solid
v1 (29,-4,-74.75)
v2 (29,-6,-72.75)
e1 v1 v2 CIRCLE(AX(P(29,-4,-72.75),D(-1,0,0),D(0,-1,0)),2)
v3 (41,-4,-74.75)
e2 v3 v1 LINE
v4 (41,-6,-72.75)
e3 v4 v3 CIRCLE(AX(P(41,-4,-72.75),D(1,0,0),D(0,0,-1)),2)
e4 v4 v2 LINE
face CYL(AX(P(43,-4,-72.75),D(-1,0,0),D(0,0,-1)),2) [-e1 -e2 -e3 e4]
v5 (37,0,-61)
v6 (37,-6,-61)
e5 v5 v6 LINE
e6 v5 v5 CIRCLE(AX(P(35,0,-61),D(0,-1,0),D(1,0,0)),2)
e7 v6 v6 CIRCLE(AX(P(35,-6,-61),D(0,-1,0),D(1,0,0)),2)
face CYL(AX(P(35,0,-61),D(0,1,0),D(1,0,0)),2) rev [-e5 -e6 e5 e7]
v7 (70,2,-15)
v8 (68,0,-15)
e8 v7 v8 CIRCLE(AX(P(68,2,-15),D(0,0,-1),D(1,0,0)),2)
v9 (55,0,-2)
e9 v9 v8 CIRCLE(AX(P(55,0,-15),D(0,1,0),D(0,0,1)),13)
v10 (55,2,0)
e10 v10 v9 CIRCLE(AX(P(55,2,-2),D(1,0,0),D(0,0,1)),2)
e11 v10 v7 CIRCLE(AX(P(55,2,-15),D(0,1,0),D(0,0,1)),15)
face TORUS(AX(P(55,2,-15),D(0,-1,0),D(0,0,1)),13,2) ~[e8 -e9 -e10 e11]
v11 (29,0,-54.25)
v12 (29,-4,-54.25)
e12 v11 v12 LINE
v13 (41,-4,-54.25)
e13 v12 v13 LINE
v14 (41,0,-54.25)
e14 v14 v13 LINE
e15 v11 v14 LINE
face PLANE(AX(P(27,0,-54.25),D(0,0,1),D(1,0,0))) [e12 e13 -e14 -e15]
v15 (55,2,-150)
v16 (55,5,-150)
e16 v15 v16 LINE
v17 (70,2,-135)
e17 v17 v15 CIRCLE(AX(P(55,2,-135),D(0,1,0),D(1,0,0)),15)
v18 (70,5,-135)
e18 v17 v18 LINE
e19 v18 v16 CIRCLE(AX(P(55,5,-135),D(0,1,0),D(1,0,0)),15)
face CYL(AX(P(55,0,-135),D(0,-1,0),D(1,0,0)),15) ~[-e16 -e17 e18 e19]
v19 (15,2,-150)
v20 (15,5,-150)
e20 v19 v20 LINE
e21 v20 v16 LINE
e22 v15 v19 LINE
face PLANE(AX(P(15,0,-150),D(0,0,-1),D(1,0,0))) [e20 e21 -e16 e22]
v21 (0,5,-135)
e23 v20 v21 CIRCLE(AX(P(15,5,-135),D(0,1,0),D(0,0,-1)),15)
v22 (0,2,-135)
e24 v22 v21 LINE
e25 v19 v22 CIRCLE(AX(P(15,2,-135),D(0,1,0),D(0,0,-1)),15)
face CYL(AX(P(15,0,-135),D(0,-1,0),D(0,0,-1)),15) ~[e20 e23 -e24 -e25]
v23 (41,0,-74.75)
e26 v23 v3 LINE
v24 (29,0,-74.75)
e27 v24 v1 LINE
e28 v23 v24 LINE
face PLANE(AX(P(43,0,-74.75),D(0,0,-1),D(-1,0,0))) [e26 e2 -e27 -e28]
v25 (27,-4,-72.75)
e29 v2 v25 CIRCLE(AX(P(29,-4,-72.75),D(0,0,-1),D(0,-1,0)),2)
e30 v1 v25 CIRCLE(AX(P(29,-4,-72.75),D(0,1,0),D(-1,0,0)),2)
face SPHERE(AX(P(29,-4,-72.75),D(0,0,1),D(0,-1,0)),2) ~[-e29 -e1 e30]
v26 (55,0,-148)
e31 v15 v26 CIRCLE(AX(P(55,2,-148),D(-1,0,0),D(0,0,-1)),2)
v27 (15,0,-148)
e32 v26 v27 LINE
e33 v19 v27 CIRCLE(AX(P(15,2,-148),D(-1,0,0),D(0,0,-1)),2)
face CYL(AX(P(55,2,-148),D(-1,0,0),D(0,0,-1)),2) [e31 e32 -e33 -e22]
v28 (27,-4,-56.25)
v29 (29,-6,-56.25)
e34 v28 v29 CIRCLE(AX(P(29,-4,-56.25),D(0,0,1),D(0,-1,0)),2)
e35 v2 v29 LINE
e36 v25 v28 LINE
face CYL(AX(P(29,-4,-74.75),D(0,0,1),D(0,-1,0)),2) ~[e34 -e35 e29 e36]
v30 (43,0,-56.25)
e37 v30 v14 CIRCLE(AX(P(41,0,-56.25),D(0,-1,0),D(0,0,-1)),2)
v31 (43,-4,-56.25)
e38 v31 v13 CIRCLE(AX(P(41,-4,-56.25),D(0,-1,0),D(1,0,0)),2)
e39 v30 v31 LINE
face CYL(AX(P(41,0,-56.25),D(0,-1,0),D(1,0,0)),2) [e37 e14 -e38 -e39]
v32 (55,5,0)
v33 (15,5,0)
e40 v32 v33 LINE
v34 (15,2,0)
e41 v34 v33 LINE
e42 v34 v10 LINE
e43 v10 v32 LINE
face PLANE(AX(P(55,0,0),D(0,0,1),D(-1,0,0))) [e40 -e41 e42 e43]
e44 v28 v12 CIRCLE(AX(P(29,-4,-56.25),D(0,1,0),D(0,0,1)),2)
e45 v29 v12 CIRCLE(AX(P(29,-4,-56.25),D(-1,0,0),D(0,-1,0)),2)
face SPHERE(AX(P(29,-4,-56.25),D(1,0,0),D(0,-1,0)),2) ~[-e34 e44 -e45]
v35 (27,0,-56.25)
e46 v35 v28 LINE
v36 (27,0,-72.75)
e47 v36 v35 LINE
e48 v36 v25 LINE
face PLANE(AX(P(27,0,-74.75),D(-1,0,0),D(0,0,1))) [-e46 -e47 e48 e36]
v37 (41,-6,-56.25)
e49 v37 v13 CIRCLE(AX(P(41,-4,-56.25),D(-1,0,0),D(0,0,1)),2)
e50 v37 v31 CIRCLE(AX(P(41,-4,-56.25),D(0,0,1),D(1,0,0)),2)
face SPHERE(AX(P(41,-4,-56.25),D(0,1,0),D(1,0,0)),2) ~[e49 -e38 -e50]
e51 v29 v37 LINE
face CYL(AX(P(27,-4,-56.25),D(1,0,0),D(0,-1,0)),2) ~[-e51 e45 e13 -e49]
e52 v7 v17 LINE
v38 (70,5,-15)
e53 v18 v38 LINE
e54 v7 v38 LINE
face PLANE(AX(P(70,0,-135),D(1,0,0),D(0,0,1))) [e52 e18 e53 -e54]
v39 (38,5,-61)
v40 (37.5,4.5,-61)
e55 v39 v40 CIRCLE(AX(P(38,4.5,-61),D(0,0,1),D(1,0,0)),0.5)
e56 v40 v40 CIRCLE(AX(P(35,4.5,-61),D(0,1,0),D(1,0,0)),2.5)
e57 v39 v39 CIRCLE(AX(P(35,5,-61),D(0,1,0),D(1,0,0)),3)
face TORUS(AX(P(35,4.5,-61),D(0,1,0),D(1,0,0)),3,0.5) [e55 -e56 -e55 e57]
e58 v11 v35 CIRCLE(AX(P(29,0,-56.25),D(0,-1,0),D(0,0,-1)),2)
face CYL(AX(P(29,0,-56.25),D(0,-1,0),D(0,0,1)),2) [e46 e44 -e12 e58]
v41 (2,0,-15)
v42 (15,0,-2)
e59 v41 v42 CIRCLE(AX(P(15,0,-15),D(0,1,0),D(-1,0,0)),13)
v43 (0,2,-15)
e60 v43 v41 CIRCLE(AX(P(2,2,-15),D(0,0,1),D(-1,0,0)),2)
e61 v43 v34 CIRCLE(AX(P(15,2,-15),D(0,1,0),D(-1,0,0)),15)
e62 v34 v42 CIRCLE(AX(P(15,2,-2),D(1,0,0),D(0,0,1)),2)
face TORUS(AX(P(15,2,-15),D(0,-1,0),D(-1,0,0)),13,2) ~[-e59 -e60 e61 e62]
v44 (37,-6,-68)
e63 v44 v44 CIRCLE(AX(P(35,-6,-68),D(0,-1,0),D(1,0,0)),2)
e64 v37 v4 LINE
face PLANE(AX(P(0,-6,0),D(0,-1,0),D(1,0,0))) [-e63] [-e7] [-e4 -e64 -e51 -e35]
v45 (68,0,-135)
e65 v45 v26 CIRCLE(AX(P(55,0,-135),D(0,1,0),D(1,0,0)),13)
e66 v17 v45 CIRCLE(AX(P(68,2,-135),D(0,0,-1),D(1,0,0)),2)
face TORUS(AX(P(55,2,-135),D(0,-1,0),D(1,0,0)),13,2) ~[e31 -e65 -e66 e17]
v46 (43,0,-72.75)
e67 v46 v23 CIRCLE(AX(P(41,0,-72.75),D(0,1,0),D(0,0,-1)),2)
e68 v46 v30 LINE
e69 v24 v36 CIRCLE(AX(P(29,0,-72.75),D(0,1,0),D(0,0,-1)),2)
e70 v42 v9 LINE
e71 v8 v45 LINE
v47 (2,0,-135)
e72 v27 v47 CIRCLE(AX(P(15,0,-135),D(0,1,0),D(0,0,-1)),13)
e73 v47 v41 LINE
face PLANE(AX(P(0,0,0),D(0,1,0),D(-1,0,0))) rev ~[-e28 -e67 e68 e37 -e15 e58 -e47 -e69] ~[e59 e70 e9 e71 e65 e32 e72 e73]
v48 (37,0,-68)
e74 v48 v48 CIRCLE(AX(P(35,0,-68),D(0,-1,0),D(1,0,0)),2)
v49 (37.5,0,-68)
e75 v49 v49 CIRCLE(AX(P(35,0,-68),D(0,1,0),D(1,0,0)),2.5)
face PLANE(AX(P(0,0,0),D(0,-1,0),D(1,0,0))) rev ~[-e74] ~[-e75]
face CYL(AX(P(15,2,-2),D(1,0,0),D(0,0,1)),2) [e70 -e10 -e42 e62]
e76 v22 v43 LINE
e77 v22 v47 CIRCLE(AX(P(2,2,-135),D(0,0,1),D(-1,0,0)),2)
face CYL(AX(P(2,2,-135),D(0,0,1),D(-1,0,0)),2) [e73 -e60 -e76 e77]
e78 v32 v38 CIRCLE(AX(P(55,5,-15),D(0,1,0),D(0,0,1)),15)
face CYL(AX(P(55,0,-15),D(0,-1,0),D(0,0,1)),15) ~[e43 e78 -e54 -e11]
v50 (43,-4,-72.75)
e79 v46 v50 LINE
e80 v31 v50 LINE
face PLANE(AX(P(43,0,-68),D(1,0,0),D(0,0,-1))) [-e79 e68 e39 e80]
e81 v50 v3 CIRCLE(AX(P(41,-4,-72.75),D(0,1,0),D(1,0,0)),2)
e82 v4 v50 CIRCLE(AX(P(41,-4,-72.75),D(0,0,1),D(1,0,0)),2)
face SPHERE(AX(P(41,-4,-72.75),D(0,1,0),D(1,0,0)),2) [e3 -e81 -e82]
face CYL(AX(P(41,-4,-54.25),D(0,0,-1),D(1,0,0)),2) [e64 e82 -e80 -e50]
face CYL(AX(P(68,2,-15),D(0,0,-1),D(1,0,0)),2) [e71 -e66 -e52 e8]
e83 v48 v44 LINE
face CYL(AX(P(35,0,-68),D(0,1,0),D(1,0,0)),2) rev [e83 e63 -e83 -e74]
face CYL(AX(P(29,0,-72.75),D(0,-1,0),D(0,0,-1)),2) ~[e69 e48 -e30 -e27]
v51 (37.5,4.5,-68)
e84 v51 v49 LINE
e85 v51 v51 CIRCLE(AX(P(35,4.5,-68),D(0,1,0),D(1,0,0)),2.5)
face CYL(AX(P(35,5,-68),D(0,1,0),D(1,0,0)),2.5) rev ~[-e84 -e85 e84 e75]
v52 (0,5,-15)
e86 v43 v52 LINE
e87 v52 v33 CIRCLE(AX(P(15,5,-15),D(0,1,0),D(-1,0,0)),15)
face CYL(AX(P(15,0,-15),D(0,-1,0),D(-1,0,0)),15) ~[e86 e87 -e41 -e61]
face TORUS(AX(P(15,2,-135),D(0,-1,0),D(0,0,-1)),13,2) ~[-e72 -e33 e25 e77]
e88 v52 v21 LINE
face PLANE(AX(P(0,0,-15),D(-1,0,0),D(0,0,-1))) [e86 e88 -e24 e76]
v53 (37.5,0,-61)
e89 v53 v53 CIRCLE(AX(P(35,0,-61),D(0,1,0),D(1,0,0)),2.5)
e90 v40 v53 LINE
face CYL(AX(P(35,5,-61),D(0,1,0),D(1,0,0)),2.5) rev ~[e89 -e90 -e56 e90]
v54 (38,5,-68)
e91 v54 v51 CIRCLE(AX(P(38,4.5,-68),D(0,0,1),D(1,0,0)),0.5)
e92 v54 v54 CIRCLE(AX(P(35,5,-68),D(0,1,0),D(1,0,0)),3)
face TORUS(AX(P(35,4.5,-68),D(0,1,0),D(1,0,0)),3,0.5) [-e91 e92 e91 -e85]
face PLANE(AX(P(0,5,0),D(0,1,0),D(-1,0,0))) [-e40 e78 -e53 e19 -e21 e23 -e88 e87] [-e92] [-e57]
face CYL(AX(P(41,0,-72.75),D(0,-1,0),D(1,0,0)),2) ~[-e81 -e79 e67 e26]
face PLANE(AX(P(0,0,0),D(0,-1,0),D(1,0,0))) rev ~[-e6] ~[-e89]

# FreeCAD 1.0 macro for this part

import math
import FreeCAD as App
import Part
import Sketcher
Q = App.Units.Quantity


def edges_at(feature, points):
    """Names of the edges that pass closest to the given points."""
    edges = feature.Shape.Edges
    near = lambda p: min(range(len(edges)), key=lambda i: edges[i].distToShape(Part.Vertex(*p))[0])
    return sorted({f"Edge{near(p) + 1}" for p in points})

doc = App.newDocument("Part")
body = doc.addObject("PartDesign::Body", "Body")

# Sketch on XZ plane
sketch1 = body.newObject("Sketcher::SketchObject", "Sketch")
sketch1.AttachmentSupport = (doc.getObject("XZ_Plane"), [""])
sketch1.MapMode = "FlatFace"
sketch1.addGeometry(Part.LineSegment(App.Vector(0, -135, 0), App.Vector(0, -15, 0)), False)
sketch1.addGeometry(Part.ArcOfCircle(Part.Circle(App.Vector(15, -15, 0), App.Vector(0, 0, 1), 15), math.radians(90), math.radians(180)), False)
sketch1.addGeometry(Part.LineSegment(App.Vector(15, 0, 0), App.Vector(55, 0, 0)), False)
sketch1.addGeometry(Part.ArcOfCircle(Part.Circle(App.Vector(55, -15, 0), App.Vector(0, 0, 1), 15), math.radians(0), math.radians(90)), False)
sketch1.addGeometry(Part.LineSegment(App.Vector(70, -15, 0), App.Vector(70, -135, 0)), False)
sketch1.addGeometry(Part.ArcOfCircle(Part.Circle(App.Vector(55, -135, 0), App.Vector(0, 0, 1), 15), math.radians(-90), math.radians(0)), False)
sketch1.addGeometry(Part.LineSegment(App.Vector(55, -150, 0), App.Vector(15, -150, 0)), False)
sketch1.addGeometry(Part.ArcOfCircle(Part.Circle(App.Vector(15, -135, 0), App.Vector(0, 0, 1), 15), math.radians(180), math.radians(270)), False)
sketch1.addConstraint(Sketcher.Constraint("Tangent", 0, 2, 1, 2))
sketch1.addConstraint(Sketcher.Constraint("Tangent", 1, 1, 2, 1))
sketch1.addConstraint(Sketcher.Constraint("Tangent", 2, 2, 3, 2))
sketch1.addConstraint(Sketcher.Constraint("Tangent", 3, 1, 4, 1))
sketch1.addConstraint(Sketcher.Constraint("Tangent", 4, 2, 5, 2))
sketch1.addConstraint(Sketcher.Constraint("Tangent", 5, 1, 6, 1))
sketch1.addConstraint(Sketcher.Constraint("Tangent", 6, 2, 7, 2))
sketch1.addConstraint(Sketcher.Constraint("Tangent", 7, 1, 0, 1))
sketch1.addConstraint(Sketcher.Constraint("Vertical", 0))
sketch1.addConstraint(Sketcher.Constraint("Horizontal", 2))
sketch1.addConstraint(Sketcher.Constraint("Vertical", 4))
sketch1.addConstraint(Sketcher.Constraint("Horizontal", 6))
sketch1.addConstraint(Sketcher.Constraint("Equal", 1, 3))
sketch1.addConstraint(Sketcher.Constraint("Equal", 3, 5))
sketch1.addConstraint(Sketcher.Constraint("Equal", 5, 7))
sketch1.addConstraint(Sketcher.Constraint("PointOnObject", 0, 2, -2))
sketch1.addConstraint(Sketcher.Constraint("PointOnObject", 1, 1, -1))
sketch1.addConstraint(Sketcher.Constraint("Radius", 1, Q("15 mm")))
sketch1.addConstraint(Sketcher.Constraint("DistanceX", -1, 1, 3, 1, Q("70 mm")))
sketch1.addConstraint(Sketcher.Constraint("DistanceY", 5, 1, -1, 1, Q("150 mm")))
pad1 = body.newObject("PartDesign::Pad", "Pad")
pad1.Profile = sketch1
pad1.Length = 5
pad1.Reversed = True

# Sketch on XZ plane
sketch2 = body.newObject("Sketcher::SketchObject", "Sketch001")
sketch2.AttachmentSupport = (doc.getObject("XZ_Plane"), [""])
sketch2.MapMode = "FlatFace"
sketch2.AttachmentOffset = App.Placement(App.Vector(0, 0, -5), App.Rotation())
sketch2.addGeometry(Part.Circle(App.Vector(35, -61, 0), App.Vector(0, 0, 1), 2.5), False)
sketch2.addGeometry(Part.Circle(App.Vector(35, -68, 0), App.Vector(0, 0, 1), 2.5), False)
sketch2.addConstraint(Sketcher.Constraint("Equal", 0, 1))
sketch2.addConstraint(Sketcher.Constraint("Vertical", 0, 3, 1, 3))
sketch2.addConstraint(Sketcher.Constraint("Diameter", 0, Q("5 mm")))
sketch2.addConstraint(Sketcher.Constraint("DistanceX", -1, 1, 0, 3, Q("35 mm")))
sketch2.addConstraint(Sketcher.Constraint("DistanceY", 0, 3, -1, 1, Q("61 mm")))
sketch2.addConstraint(Sketcher.Constraint("DistanceY", 1, 3, -1, 1, Q("68 mm")))
pocket1 = body.newObject("PartDesign::Pocket", "Pocket")
pocket1.Profile = sketch2
pocket1.Type = "ThroughAll"
pocket1.Reversed = True

# Sketch on XZ plane
sketch3 = body.newObject("Sketcher::SketchObject", "Sketch002")
sketch3.AttachmentSupport = (doc.getObject("XZ_Plane"), [""])
sketch3.MapMode = "FlatFace"
sketch3.addGeometry(Part.LineSegment(App.Vector(43, -74.8, 0), App.Vector(43, -54.2, 0)), False)
sketch3.addGeometry(Part.LineSegment(App.Vector(43, -54.2, 0), App.Vector(27, -54.2, 0)), False)
sketch3.addGeometry(Part.LineSegment(App.Vector(27, -54.2, 0), App.Vector(27, -74.8, 0)), False)
sketch3.addGeometry(Part.LineSegment(App.Vector(27, -74.8, 0), App.Vector(43, -74.8, 0)), False)
sketch3.addGeometry(Part.Circle(App.Vector(35, -68, 0), App.Vector(0, 0, 1), 2), False)
sketch3.addGeometry(Part.Circle(App.Vector(35, -61, 0), App.Vector(0, 0, 1), 2), False)
sketch3.addConstraint(Sketcher.Constraint("Coincident", 0, 2, 1, 1))
sketch3.addConstraint(Sketcher.Constraint("Coincident", 1, 2, 2, 1))
sketch3.addConstraint(Sketcher.Constraint("Coincident", 2, 2, 3, 1))
sketch3.addConstraint(Sketcher.Constraint("Coincident", 3, 2, 0, 1))
sketch3.addConstraint(Sketcher.Constraint("Vertical", 0))
sketch3.addConstraint(Sketcher.Constraint("Horizontal", 1))
sketch3.addConstraint(Sketcher.Constraint("Vertical", 2))
sketch3.addConstraint(Sketcher.Constraint("Horizontal", 3))
sketch3.addConstraint(Sketcher.Constraint("Equal", 4, 5))
sketch3.addConstraint(Sketcher.Constraint("Vertical", 4, 3, 5, 3))
sketch3.addConstraint(Sketcher.Constraint("Diameter", 4, Q("4 mm")))
sketch3.addConstraint(Sketcher.Constraint("DistanceX", 5, 3, 0, 2, Q("8 mm")))
sketch3.addConstraint(Sketcher.Constraint("DistanceX", 1, 2, 5, 3, Q("8 mm")))
sketch3.addConstraint(Sketcher.Constraint("DistanceY", 0, 1, 0, 2, Q("20.5 mm")))
sketch3.addConstraint(Sketcher.Constraint("DistanceX", -1, 1, 4, 3, Q("35 mm")))
sketch3.addConstraint(Sketcher.Constraint("DistanceY", 4, 3, -1, 1, Q("68 mm")))
sketch3.addConstraint(Sketcher.Constraint("DistanceY", 5, 3, -1, 1, Q("61 mm")))
sketch3.addConstraint(Sketcher.Constraint("DistanceY", 0, 2, -1, 1, Q("54.25 mm")))
pad2 = body.newObject("PartDesign::Pad", "Pad001")
pad2.Profile = sketch3
pad2.Length = 6
doc.recompute()

fillet = body.newObject("PartDesign::Fillet", "Fillet")
fillet.Base = (pad2, edges_at(pad2, [
    (43, -3, -54.25),
    (43, -3, -74.75),
    (43, -6, -64.5),
    (35, -6, -54.25),
    (27, -6, -64.5),
    (35, -6, -74.75),
    (27, -3, -74.75),
    (27, -3, -54.25),
]))
fillet.Radius = 2
doc.recompute()

fillet2 = body.newObject("PartDesign::Fillet", "Fillet001")
fillet2.Base = (fillet, edges_at(fillet, [(32.5, 5, -61), (32.5, 5, -68)]))
fillet2.Radius = 0.5
doc.recompute()

fillet3 = body.newObject("PartDesign::Fillet", "Fillet002")
fillet3.Base = (fillet2, edges_at(fillet2, [
    (65.607, 0, -145.607),
    (35, 0, -150),
    (4.393, 0, -145.607),
    (0, 0, -75),
    (4.393, 0, -4.393),
    (35, 0, 0),
    (65.607, 0, -4.393),
    (70, 0, -75),
]))
fillet3.Radius = 2

doc.recompute()
